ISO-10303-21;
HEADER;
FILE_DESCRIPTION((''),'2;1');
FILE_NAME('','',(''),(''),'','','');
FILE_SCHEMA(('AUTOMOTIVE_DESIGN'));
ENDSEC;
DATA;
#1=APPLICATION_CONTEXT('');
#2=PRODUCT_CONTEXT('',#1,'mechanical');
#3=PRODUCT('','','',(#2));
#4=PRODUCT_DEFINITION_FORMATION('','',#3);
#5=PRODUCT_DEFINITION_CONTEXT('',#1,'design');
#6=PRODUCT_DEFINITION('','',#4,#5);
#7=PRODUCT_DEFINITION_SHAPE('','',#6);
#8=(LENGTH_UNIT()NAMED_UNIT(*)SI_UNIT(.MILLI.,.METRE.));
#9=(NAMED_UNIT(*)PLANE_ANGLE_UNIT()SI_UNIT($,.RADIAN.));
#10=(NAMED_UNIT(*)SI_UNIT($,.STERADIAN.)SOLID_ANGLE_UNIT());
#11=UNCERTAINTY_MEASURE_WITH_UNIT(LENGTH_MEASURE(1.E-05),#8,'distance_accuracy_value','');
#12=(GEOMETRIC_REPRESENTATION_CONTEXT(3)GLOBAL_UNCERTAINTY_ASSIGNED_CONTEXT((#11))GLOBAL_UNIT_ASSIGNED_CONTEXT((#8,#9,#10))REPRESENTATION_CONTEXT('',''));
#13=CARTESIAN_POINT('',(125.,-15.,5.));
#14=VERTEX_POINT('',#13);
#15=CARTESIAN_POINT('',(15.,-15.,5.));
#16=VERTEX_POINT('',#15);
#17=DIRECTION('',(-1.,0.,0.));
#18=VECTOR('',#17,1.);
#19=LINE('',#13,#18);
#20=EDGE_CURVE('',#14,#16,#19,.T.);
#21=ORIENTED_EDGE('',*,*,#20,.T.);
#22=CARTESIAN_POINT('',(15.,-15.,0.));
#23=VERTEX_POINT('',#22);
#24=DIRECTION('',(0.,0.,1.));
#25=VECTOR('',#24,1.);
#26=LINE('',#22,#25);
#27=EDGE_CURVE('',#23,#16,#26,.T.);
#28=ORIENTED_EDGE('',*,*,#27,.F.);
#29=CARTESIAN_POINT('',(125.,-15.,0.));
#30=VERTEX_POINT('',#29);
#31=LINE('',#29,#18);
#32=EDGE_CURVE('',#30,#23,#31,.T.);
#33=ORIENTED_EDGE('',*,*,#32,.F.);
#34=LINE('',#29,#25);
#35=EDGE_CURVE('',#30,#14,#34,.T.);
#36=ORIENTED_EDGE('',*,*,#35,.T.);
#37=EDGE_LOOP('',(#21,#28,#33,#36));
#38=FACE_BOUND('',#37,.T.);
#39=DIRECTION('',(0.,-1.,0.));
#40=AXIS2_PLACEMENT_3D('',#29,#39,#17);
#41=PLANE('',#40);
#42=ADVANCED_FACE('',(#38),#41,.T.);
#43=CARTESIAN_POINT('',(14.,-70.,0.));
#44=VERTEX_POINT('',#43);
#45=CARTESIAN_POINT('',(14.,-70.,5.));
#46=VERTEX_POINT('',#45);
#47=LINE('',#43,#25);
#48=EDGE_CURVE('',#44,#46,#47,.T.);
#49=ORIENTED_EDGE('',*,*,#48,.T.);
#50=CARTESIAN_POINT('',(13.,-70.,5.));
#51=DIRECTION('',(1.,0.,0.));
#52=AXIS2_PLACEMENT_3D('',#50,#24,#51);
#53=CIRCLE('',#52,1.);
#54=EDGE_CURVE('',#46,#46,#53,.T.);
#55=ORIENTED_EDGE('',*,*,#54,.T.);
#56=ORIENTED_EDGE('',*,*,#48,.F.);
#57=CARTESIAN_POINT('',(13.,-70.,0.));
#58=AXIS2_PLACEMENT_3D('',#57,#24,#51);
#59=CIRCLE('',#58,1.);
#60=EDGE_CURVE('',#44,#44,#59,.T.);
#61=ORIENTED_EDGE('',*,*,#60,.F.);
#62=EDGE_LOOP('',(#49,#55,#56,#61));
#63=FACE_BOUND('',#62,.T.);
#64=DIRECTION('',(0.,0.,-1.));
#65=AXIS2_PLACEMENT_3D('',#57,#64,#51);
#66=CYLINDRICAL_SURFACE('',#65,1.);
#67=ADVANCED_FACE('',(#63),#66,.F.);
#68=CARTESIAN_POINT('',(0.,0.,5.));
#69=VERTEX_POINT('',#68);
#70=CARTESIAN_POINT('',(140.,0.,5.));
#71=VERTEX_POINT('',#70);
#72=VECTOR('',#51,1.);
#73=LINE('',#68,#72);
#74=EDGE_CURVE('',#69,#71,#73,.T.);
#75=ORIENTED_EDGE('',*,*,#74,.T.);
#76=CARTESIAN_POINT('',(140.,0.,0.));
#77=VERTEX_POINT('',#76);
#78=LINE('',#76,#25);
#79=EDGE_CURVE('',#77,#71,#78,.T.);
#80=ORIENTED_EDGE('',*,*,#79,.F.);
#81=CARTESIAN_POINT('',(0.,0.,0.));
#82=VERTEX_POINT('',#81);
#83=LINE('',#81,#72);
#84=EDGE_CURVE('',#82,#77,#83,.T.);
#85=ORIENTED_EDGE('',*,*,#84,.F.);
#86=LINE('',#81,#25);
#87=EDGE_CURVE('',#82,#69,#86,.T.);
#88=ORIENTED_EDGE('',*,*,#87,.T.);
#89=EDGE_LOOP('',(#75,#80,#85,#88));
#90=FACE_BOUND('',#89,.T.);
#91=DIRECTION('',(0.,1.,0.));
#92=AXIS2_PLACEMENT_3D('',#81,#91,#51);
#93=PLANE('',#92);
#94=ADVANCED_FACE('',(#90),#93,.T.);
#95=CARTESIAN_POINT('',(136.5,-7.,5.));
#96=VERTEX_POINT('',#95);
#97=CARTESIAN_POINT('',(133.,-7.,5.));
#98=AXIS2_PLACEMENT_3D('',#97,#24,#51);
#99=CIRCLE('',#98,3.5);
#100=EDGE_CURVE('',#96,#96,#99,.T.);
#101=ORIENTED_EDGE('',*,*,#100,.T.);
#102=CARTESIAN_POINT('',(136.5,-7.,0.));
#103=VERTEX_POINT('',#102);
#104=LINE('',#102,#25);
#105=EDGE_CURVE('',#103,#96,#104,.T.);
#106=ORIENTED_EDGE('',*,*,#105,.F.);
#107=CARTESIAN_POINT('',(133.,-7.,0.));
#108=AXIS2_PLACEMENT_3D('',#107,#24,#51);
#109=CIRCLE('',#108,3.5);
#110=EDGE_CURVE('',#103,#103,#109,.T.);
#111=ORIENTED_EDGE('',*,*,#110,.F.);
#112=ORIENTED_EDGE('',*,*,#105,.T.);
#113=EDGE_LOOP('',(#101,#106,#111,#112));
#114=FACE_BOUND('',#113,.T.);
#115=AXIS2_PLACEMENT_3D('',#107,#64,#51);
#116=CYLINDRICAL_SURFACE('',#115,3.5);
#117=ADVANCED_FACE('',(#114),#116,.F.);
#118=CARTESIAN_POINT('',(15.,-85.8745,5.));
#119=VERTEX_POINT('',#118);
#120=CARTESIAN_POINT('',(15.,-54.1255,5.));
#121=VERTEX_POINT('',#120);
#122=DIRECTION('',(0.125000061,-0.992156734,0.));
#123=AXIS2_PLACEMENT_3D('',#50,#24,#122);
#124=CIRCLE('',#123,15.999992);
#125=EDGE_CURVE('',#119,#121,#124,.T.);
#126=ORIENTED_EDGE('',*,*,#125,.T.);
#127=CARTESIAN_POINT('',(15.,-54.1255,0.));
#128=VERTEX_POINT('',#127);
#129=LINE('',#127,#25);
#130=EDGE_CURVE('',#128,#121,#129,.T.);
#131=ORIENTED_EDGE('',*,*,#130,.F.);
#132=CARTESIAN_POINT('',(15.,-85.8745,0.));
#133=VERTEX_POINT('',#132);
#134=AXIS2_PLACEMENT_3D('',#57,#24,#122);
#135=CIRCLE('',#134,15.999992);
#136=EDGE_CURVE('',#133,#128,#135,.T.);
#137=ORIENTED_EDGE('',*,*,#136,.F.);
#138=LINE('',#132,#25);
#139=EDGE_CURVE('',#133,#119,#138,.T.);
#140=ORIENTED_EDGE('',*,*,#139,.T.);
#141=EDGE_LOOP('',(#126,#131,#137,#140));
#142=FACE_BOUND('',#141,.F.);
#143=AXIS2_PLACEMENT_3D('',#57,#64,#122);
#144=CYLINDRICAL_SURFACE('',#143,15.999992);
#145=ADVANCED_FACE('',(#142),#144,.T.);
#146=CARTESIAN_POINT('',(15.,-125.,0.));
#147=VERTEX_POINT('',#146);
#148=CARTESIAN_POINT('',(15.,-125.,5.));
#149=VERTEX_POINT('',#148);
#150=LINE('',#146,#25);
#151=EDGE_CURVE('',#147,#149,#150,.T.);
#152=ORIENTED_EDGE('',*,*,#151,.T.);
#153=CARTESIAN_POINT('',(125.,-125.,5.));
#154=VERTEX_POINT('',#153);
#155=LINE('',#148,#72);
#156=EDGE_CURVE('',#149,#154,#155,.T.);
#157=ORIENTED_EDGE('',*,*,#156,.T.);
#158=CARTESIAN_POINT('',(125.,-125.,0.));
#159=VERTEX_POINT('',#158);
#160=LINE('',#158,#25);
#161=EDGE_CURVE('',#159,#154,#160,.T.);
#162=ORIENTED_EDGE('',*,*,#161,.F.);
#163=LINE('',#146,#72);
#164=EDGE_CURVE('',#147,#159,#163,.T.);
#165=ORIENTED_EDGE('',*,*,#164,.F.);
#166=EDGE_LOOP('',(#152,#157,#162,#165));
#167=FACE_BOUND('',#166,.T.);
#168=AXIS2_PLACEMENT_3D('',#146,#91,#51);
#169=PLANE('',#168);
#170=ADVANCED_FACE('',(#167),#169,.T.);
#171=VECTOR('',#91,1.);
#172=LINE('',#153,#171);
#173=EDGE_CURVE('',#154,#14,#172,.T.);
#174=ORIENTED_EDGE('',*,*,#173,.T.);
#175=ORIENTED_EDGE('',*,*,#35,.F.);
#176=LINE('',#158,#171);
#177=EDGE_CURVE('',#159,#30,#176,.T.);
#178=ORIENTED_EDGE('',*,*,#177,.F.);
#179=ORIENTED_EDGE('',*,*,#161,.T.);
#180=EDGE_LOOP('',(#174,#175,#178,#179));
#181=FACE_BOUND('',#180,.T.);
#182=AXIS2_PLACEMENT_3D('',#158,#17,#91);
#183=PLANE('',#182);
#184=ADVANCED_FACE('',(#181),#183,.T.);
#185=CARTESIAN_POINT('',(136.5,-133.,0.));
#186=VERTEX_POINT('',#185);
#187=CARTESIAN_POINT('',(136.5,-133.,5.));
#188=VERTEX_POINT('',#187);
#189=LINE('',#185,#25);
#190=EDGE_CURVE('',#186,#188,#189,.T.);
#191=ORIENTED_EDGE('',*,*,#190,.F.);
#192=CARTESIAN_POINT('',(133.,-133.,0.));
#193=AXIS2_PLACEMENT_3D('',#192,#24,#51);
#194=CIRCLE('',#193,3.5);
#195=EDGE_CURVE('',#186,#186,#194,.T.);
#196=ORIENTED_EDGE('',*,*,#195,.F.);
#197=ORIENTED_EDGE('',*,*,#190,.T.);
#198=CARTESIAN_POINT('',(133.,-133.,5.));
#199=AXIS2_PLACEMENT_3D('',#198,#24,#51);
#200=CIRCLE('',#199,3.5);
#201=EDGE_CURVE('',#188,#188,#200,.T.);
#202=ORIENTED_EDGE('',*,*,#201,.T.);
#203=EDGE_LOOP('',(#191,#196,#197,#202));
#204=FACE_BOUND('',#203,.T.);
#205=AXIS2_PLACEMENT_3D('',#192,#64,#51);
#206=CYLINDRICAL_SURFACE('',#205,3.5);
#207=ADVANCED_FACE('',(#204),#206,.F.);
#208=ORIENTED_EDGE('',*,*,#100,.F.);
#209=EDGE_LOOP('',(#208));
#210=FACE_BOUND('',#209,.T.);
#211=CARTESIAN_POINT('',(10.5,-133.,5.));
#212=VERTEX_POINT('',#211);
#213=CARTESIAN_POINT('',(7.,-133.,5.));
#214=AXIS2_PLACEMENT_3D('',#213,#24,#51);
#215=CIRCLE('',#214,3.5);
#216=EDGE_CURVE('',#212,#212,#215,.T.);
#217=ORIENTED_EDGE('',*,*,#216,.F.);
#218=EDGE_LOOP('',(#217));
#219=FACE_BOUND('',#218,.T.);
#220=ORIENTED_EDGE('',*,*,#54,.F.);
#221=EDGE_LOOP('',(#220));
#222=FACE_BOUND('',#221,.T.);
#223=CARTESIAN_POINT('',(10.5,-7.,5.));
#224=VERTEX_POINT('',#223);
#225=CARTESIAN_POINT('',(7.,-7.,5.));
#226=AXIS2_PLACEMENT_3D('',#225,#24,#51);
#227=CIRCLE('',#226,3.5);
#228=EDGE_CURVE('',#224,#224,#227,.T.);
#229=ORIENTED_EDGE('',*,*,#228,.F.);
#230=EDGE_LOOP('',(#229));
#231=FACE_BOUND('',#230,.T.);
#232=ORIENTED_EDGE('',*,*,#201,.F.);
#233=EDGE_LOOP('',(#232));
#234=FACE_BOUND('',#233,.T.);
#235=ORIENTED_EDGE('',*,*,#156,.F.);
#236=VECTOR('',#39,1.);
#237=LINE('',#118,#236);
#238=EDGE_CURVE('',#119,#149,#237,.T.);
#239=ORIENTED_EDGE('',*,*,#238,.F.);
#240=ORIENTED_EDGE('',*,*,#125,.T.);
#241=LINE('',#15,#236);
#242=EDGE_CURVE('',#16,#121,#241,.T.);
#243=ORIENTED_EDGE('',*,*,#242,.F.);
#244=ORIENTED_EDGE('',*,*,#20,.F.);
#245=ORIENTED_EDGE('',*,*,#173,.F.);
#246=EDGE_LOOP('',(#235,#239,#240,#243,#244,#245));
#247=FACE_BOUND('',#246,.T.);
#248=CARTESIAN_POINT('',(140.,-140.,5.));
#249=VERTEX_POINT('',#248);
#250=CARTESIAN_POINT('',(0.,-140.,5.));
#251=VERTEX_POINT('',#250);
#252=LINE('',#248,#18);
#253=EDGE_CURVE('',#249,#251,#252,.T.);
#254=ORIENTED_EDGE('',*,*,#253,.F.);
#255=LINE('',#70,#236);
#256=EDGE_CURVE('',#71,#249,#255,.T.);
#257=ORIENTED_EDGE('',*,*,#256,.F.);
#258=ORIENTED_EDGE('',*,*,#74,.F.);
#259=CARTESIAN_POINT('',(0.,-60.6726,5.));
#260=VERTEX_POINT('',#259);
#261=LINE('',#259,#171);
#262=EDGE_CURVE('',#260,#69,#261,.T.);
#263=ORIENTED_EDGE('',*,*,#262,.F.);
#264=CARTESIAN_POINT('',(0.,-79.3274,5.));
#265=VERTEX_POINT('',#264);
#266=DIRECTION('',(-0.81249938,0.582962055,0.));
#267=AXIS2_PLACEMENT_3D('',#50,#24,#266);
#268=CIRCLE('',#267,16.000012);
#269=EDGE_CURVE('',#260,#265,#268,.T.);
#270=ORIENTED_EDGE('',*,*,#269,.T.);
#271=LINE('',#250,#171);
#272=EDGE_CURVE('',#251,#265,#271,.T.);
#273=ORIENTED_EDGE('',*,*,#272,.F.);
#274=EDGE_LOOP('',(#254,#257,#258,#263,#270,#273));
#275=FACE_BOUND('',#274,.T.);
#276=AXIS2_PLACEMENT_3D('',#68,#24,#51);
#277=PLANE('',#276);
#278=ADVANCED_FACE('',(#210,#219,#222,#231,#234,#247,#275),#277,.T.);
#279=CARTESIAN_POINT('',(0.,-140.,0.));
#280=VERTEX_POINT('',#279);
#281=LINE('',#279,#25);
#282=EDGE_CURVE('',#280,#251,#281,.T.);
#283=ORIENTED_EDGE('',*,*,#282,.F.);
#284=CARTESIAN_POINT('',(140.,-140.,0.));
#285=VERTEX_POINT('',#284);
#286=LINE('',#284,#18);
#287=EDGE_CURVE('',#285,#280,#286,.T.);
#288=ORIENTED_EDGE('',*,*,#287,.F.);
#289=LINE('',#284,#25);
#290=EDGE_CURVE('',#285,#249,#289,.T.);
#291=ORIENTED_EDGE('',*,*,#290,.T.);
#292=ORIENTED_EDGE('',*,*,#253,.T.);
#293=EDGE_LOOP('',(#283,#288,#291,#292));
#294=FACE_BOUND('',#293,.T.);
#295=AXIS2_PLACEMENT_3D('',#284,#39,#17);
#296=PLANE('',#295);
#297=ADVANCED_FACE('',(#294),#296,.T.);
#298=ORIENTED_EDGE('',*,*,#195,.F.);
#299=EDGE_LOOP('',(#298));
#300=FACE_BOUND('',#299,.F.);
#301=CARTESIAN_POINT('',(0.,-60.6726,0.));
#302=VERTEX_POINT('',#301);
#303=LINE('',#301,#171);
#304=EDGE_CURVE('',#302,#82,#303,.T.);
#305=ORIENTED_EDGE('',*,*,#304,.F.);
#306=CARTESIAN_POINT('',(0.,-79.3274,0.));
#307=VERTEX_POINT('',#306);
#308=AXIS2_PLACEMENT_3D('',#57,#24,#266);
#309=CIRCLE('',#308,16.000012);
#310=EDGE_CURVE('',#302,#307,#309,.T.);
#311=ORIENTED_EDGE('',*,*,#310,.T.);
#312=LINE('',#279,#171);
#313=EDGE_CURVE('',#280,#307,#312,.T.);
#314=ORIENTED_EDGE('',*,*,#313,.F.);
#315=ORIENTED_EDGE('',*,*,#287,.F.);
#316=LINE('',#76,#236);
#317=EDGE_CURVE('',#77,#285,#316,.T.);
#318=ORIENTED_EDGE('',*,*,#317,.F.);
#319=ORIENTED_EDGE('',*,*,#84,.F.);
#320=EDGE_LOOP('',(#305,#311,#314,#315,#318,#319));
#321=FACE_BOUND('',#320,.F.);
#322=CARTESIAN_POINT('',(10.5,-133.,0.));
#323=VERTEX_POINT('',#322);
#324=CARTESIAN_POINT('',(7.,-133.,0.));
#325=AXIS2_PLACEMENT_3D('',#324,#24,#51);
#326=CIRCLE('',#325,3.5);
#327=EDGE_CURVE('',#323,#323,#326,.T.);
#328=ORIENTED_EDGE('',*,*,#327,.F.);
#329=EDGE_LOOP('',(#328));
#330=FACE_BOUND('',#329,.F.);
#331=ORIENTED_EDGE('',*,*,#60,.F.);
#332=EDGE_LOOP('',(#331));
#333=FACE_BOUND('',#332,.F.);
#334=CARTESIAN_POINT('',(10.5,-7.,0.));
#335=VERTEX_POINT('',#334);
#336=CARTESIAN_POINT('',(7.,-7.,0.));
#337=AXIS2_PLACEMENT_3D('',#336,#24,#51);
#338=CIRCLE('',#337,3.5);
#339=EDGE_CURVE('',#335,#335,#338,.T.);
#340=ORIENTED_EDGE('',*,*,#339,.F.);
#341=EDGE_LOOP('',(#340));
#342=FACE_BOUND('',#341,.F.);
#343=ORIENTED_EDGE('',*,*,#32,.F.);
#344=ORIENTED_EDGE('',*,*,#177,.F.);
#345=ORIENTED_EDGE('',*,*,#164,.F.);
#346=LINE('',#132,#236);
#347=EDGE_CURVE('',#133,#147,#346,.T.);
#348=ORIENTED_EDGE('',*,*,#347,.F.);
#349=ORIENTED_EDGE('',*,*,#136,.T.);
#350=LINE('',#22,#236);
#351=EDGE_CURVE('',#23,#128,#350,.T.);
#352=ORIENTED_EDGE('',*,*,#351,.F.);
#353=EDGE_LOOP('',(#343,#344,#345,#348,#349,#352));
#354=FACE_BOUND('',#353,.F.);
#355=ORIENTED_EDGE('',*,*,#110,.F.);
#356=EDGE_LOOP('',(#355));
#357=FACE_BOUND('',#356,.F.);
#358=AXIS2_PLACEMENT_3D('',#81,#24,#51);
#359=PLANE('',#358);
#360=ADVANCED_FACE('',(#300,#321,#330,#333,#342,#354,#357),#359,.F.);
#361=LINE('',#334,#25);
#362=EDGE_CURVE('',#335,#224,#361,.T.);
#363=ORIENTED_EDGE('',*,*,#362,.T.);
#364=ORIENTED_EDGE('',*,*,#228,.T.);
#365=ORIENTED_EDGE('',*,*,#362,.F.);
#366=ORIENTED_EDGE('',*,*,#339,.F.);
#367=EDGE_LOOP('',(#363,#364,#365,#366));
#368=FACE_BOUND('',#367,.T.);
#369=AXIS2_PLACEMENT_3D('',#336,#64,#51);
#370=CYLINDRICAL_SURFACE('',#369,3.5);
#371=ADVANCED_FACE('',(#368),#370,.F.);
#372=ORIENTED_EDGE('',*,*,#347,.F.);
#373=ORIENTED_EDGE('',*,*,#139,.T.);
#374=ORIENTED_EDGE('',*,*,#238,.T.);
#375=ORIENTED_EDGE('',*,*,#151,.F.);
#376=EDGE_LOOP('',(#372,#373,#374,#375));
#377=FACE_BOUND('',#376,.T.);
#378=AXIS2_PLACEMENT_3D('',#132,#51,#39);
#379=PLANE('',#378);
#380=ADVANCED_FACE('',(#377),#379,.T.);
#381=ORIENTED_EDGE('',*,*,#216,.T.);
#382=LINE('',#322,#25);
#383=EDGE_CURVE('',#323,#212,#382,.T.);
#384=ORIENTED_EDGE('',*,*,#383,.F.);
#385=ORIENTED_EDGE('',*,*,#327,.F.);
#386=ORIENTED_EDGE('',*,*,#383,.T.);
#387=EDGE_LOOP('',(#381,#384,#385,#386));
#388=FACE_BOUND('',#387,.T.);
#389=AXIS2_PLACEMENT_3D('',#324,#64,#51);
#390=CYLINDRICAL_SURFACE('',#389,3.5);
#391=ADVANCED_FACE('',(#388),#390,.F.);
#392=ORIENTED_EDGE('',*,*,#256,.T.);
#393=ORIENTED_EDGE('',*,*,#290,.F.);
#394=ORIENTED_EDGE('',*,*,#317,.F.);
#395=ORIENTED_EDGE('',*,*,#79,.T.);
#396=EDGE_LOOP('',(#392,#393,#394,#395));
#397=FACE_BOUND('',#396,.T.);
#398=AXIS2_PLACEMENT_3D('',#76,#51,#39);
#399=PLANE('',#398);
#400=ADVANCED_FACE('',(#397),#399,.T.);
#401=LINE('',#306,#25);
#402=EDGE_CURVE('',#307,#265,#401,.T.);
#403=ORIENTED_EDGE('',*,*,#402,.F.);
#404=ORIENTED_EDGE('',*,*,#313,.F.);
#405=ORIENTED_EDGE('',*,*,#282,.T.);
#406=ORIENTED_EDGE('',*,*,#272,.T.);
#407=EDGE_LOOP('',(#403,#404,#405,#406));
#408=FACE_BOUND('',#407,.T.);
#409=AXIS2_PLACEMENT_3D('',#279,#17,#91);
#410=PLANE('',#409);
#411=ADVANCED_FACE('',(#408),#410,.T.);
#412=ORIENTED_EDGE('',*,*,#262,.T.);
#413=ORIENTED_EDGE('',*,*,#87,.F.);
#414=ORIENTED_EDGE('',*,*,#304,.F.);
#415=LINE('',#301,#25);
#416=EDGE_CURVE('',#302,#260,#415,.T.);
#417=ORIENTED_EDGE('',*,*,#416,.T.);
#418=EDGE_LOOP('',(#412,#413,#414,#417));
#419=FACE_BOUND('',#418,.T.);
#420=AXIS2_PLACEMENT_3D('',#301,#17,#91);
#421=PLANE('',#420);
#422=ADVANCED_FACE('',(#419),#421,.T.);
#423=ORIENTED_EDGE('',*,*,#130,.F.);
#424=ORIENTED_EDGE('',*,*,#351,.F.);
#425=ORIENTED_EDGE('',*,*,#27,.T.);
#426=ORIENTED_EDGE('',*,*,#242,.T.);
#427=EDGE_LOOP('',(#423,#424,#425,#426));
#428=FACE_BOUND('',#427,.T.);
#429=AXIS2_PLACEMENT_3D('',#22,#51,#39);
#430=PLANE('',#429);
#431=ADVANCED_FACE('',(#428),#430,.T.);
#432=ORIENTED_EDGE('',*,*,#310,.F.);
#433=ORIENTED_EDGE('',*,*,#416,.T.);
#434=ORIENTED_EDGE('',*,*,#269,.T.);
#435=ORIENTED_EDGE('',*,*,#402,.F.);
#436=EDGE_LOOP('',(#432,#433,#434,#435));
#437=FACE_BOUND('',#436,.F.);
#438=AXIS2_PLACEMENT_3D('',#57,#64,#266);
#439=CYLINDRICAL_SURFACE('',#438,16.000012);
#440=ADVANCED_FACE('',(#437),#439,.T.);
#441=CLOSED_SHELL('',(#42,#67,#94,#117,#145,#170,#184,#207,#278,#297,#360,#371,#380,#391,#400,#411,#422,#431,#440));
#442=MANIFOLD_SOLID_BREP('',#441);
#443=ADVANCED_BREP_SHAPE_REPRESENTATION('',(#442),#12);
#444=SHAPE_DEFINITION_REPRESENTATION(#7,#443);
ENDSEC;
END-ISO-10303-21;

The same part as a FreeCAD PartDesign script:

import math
import FreeCAD as App
import Part
import Sketcher
Q = App.Units.Quantity

doc = App.newDocument("Part")
body = doc.addObject("PartDesign::Body", "Body")

# Sketch on XY plane
sketch1 = doc.addObject("Sketcher::SketchObject", "Sketch")
body.addObject(sketch1)
sketch1.AttachmentSupport = (doc.XY_Plane, [""])
sketch1.MapMode = "FlatFace"
sketch1.addGeometry([
    Part.LineSegment(App.Vector(0, 0, 0), App.Vector(0, -60.7, 0)),  # 0
    Part.ArcOfCircle(Part.Circle(App.Vector(13, -70, 0), App.Vector(0, 0, 1), 16), math.radians(144), math.radians(216)),  # 1
    Part.LineSegment(App.Vector(0, -79.3, 0), App.Vector(0, -140, 0)),  # 2
    Part.LineSegment(App.Vector(0, -140, 0), App.Vector(140, -140, 0)),  # 3
    Part.LineSegment(App.Vector(140, -140, 0), App.Vector(140, 0, 0)),  # 4
    Part.LineSegment(App.Vector(140, 0, 0), App.Vector(0, 0, 0)),  # 5
    Part.Circle(App.Vector(7, -133, 0), App.Vector(0, 0, 1), 3.5),  # 6
    Part.Circle(App.Vector(133, -133, 0), App.Vector(0, 0, 1), 3.5),  # 7
    Part.Circle(App.Vector(13, -70, 0), App.Vector(0, 0, 1), 1),  # 8
    Part.Circle(App.Vector(7, -7, 0), App.Vector(0, 0, 1), 3.5),  # 9
    Part.LineSegment(App.Vector(15, -125, 0), App.Vector(15, -85.9, 0)),  # 10
    Part.ArcOfCircle(Part.Circle(App.Vector(13, -70, 0), App.Vector(0, 0, 1), 16), math.radians(-83), math.radians(83)),  # 11
    Part.LineSegment(App.Vector(15, -54.1, 0), App.Vector(15, -15, 0)),  # 12
    Part.LineSegment(App.Vector(15, -15, 0), App.Vector(125, -15, 0)),  # 13
    Part.LineSegment(App.Vector(125, -15, 0), App.Vector(125, -125, 0)),  # 14
    Part.LineSegment(App.Vector(125, -125, 0), App.Vector(15, -125, 0)),  # 15
    Part.Circle(App.Vector(133, -7, 0), App.Vector(0, 0, 1), 3.5),  # 16
], False)
sketch1.addConstraint([
    Sketcher.Constraint("Coincident", 0, 2, 1, 1),
    Sketcher.Constraint("Coincident", 1, 2, 2, 1),
    Sketcher.Constraint("Coincident", 2, 2, 3, 1),
    Sketcher.Constraint("Coincident", 3, 2, 4, 1),
    Sketcher.Constraint("Coincident", 4, 2, 5, 1),
    Sketcher.Constraint("Coincident", 5, 2, 0, 1),
    Sketcher.Constraint("Coincident", 10, 2, 11, 1),
    Sketcher.Constraint("Coincident", 11, 2, 12, 1),
    Sketcher.Constraint("Coincident", 12, 2, 13, 1),
    Sketcher.Constraint("Coincident", 13, 2, 14, 1),
    Sketcher.Constraint("Coincident", 14, 2, 15, 1),
    Sketcher.Constraint("Coincident", 15, 2, 10, 1),
    Sketcher.Constraint("Vertical", 0),
    Sketcher.Constraint("Vertical", 2),
    Sketcher.Constraint("Horizontal", 3),
    Sketcher.Constraint("Vertical", 4),
    Sketcher.Constraint("Horizontal", 5),
    Sketcher.Constraint("Vertical", 10),
    Sketcher.Constraint("Vertical", 12),
    Sketcher.Constraint("Horizontal", 13),
    Sketcher.Constraint("Vertical", 14),
    Sketcher.Constraint("Horizontal", 15),
    Sketcher.Constraint("Coincident", 5, 2, -1, 1),
    Sketcher.Constraint("Coincident", 8, 3, 1, 3),
    Sketcher.Constraint("Coincident", 11, 3, 1, 3),
    Sketcher.Constraint("Equal", 6, 7),
    Sketcher.Constraint("Equal", 7, 9),
    Sketcher.Constraint("Equal", 1, 11),
    Sketcher.Constraint("Equal", 9, 16),
    Sketcher.Constraint("PointOnObject", 1, 2, -2),
    Sketcher.Constraint("Horizontal", 6, 3, 7, 3),
    Sketcher.Constraint("Horizontal", 9, 3, 16, 3),
    Sketcher.Constraint("Vertical", 6, 3, 9, 3),
    Sketcher.Constraint("Vertical", 7, 3, 16, 3),
    Sketcher.Constraint("Vertical", 10, 2, 11, 2),
    Sketcher.Constraint("Equal", 0, 2),
    Sketcher.Constraint("Equal", 5, 4),
    Sketcher.Constraint("Equal", 10, 12),
    Sketcher.Constraint("Equal", 15, 14),
    Sketcher.Constraint("Diameter", 8, Q("2 mm")),
    Sketcher.Constraint("Diameter", 6, Q("7 mm")),
    Sketcher.Constraint("Radius", 1, Q("16 mm")),
    Sketcher.Constraint("DistanceX", 1, 3, 10, 2, Q("2 mm")),
    Sketcher.Constraint("DistanceX", 3, 1, 3, 2, Q("140 mm")),
    Sketcher.Constraint("DistanceX", 13, 1, 13, 2, Q("110 mm")),
    Sketcher.Constraint("DistanceX", -1, 1, 1, 3, Q("13 mm")),
    Sketcher.Constraint("DistanceX", -1, 1, 6, 3, Q("7 mm")),
    Sketcher.Constraint("DistanceY", 6, 3, -1, 1, Q("133 mm")),
    Sketcher.Constraint("DistanceX", -1, 1, 7, 3, Q("133 mm")),
    Sketcher.Constraint("DistanceY", 9, 3, -1, 1, Q("7 mm")),
])
pad1 = doc.addObject("PartDesign::Pad", "Pad")
body.addObject(pad1)
pad1.Profile = sketch1
pad1.Length = 5

doc.recompute()
